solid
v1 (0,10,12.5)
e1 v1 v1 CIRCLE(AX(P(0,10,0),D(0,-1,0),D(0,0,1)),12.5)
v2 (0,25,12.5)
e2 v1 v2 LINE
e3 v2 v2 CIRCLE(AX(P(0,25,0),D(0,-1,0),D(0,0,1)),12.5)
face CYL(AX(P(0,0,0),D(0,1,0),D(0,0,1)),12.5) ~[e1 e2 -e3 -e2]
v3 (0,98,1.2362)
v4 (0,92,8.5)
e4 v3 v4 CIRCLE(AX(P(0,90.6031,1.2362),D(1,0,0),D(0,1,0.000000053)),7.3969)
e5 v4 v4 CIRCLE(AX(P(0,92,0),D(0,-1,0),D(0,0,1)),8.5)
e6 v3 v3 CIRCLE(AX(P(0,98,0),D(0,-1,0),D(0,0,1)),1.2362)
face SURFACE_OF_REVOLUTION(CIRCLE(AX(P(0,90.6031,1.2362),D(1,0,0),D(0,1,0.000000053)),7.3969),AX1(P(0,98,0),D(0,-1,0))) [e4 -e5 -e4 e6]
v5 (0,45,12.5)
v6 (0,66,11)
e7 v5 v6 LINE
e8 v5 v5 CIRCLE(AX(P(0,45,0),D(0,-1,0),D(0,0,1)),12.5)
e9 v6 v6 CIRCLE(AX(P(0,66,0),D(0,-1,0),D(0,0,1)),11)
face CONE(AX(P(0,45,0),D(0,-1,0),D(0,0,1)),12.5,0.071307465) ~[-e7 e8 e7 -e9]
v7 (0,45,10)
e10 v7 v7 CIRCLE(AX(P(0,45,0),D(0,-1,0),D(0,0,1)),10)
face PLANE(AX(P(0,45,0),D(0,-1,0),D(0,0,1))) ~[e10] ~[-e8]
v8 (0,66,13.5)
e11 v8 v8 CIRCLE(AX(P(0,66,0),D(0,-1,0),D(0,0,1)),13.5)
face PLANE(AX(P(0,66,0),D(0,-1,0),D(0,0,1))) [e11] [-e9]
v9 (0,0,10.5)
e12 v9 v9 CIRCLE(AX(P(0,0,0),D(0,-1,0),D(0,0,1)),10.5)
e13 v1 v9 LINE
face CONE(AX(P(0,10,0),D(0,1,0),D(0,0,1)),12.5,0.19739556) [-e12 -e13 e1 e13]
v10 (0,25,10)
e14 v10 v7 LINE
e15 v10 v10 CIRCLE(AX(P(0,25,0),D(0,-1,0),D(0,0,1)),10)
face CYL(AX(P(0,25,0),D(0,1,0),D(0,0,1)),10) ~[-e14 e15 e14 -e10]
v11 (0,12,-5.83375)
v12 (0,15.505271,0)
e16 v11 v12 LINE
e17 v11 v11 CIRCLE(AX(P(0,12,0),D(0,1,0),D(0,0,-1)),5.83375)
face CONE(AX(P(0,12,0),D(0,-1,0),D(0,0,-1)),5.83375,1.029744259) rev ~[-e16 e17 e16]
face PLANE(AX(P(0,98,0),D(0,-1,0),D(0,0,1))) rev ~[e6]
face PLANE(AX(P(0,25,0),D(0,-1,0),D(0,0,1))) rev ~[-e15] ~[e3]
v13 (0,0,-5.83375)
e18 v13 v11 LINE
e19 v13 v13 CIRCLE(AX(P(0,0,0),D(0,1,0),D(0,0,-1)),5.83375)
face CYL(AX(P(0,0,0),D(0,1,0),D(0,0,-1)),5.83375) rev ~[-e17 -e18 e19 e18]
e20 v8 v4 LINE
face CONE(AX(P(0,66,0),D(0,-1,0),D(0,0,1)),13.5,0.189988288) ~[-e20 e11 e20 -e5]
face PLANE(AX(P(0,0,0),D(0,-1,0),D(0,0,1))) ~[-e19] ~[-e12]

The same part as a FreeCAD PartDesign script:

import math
import FreeCAD as App
import Part
import Sketcher

V = App.Vector


def edges_at(feature, points):
    """Names of the edges that pass closest to the given points."""
    edges = feature.Shape.Edges
    near = lambda p: min(range(len(edges)), key=lambda i: edges[i].distToShape(Part.Vertex(*p))[0])
    return sorted({f"Edge{near(p) + 1}" for p in points})

doc = App.newDocument("Part")
params = doc.addObject("Spreadsheet::Sheet", "Params")
for row, (alias, value) in enumerate([
    ("sketch1_width", "20 mm"),
    ("sketch1_width2", "25 mm"),
    ("sketch1_height", "12.5 mm"),
    ("revolution_angle", "360 deg"),
    ("hole_diameter", "11.6675 mm"),
    ("hole_depth", "12 mm"),
    ("chamfer_size", "10 mm"),
    ("chamfer_size2", "2 mm"),
], start=1):
    params.set(f"A{row}", alias)
    params.set(f"B{row}", "=" + value)
    params.setAlias(f"B{row}", alias)

body = doc.addObject("PartDesign::Body", "Body")

# Sketch on YZ plane
sketch1 = body.newObject("Sketcher::SketchObject", "Sketch")
sketch1.AttachmentSupport = (doc.getObject("YZ_Plane"), [""])
sketch1.MapMode = "FlatFace"
sketch1.addGeometry([
    Part.LineSegment(V(0, 12.5, 0), V(0, 0, 0)),  # 0
    Part.LineSegment(V(0, 0, 0), V(98, 0, 0)),  # 1
    Part.LineSegment(V(98, 0, 0), V(98, 1.2, 0)),  # 2
    Part.ArcOfCircle(Part.Circle(V(90.6, 1.2, 0), V(0, 0, 1), 7.4), math.radians(0), math.radians(79)),  # 3
    Part.LineSegment(V(92, 8.5, 0), V(66, 13.5, 0)),  # 4
    Part.LineSegment(V(66, 13.5, 0), V(66, 11, 0)),  # 5
    Part.LineSegment(V(66, 11, 0), V(45, 12.5, 0)),  # 6
    Part.LineSegment(V(45, 12.5, 0), V(45, 10, 0)),  # 7
    Part.LineSegment(V(45, 10, 0), V(25, 10, 0)),  # 8
    Part.LineSegment(V(25, 10, 0), V(25, 12.5, 0)),  # 9
    Part.LineSegment(V(25, 12.5, 0), V(0, 12.5, 0)),  # 10
], False)
sketch1.addConstraint([
    Sketcher.Constraint("Coincident", 0, 2, 1, 1),
    Sketcher.Constraint("Coincident", 1, 2, 2, 1),
    Sketcher.Constraint("Tangent", 2, 2, 3, 1),
    Sketcher.Constraint("Tangent", 3, 2, 4, 1),
    Sketcher.Constraint("Coincident", 4, 2, 5, 1),
    Sketcher.Constraint("Coincident", 5, 2, 6, 1),
    Sketcher.Constraint("Coincident", 6, 2, 7, 1),
    Sketcher.Constraint("Coincident", 7, 2, 8, 1),
    Sketcher.Constraint("Coincident", 8, 2, 9, 1),
    Sketcher.Constraint("Coincident", 9, 2, 10, 1),
    Sketcher.Constraint("Coincident", 10, 2, 0, 1),
    Sketcher.Constraint("Vertical", 0),
    Sketcher.Constraint("Horizontal", 1),
    Sketcher.Constraint("Vertical", 2),
    Sketcher.Constraint("Vertical", 5),
    Sketcher.Constraint("Vertical", 7),
    Sketcher.Constraint("Horizontal", 8),
    Sketcher.Constraint("Vertical", 9),
    Sketcher.Constraint("Horizontal", 10),
    Sketcher.Constraint("Coincident", 0, 2, -1, 1),
    Sketcher.Constraint("Horizontal", 6, 2, 9, 2),
    Sketcher.Constraint("Equal", 5, 7),
    Sketcher.Constraint("DistanceX", 8, 2, 8, 1, 20.0),
    Sketcher.Constraint("DistanceX", 10, 2, 10, 1, 25.0),
    Sketcher.Constraint("DistanceY", 0, 2, 0, 1, 12.5),
    Sketcher.Constraint("DistanceY", -1, 1, 5, 2, 11.0),
    Sketcher.Constraint("DistanceY", -1, 1, 7, 2, 10.0),
    Sketcher.Constraint("Radius", 3, 7.397),
    Sketcher.Constraint("DistanceX", 4, 2, 3, 2, 26.0),
    Sketcher.Constraint("DistanceY", 3, 2, 4, 2, 5.0),
    Sketcher.Constraint("DistanceX", 6, 2, 4, 2, 21.0),
])
sketch1.setExpression("Constraints[22]", "Params.sketch1_width")
sketch1.setExpression("Constraints[23]", "Params.sketch1_width2")
sketch1.setExpression("Constraints[24]", "Params.sketch1_height")
revolution = body.newObject("PartDesign::Revolution", "Revolution")
revolution.Profile = sketch1
revolution.ReferenceAxis = (sketch1, ["H_Axis"])
revolution.setExpression("Angle", "Params.revolution_angle")

# Sketch on XZ plane
sketch2 = body.newObject("Sketcher::SketchObject", "Sketch001")
sketch2.AttachmentSupport = (doc.getObject("XZ_Plane"), [""])
sketch2.MapMode = "FlatFace"
sketch2.addGeometry(Part.Circle(V(0, 0, 0), V(0, 0, 1), 6), False)
sketch2.addConstraint([
    Sketcher.Constraint("Coincident", 0, 3, -1, 1),
    Sketcher.Constraint("Diameter", 0, 11.6675),
])
doc.recompute()
hole = body.newObject("PartDesign::Hole", "Hole")
hole.Profile = sketch2
hole.ThreadType = "None"
hole.setExpression("Diameter", "Params.hole_diameter")
hole.DepthType = "Dimension"
hole.setExpression("Depth", "Params.hole_depth")
hole.DrillPoint = "Angled"
hole.DrillPointAngle = 118
doc.recompute()

chamfer = body.newObject("PartDesign::Chamfer", "Chamfer")
chamfer.Base = (hole, edges_at(hole, [(-11.654, 0, 4.52)]))
chamfer.ChamferType = "Two distances"
chamfer.setExpression("Size", "Params.chamfer_size")
chamfer.setExpression("Size2", "Params.chamfer_size2")
chamfer.FlipDirection = True

doc.recompute()
